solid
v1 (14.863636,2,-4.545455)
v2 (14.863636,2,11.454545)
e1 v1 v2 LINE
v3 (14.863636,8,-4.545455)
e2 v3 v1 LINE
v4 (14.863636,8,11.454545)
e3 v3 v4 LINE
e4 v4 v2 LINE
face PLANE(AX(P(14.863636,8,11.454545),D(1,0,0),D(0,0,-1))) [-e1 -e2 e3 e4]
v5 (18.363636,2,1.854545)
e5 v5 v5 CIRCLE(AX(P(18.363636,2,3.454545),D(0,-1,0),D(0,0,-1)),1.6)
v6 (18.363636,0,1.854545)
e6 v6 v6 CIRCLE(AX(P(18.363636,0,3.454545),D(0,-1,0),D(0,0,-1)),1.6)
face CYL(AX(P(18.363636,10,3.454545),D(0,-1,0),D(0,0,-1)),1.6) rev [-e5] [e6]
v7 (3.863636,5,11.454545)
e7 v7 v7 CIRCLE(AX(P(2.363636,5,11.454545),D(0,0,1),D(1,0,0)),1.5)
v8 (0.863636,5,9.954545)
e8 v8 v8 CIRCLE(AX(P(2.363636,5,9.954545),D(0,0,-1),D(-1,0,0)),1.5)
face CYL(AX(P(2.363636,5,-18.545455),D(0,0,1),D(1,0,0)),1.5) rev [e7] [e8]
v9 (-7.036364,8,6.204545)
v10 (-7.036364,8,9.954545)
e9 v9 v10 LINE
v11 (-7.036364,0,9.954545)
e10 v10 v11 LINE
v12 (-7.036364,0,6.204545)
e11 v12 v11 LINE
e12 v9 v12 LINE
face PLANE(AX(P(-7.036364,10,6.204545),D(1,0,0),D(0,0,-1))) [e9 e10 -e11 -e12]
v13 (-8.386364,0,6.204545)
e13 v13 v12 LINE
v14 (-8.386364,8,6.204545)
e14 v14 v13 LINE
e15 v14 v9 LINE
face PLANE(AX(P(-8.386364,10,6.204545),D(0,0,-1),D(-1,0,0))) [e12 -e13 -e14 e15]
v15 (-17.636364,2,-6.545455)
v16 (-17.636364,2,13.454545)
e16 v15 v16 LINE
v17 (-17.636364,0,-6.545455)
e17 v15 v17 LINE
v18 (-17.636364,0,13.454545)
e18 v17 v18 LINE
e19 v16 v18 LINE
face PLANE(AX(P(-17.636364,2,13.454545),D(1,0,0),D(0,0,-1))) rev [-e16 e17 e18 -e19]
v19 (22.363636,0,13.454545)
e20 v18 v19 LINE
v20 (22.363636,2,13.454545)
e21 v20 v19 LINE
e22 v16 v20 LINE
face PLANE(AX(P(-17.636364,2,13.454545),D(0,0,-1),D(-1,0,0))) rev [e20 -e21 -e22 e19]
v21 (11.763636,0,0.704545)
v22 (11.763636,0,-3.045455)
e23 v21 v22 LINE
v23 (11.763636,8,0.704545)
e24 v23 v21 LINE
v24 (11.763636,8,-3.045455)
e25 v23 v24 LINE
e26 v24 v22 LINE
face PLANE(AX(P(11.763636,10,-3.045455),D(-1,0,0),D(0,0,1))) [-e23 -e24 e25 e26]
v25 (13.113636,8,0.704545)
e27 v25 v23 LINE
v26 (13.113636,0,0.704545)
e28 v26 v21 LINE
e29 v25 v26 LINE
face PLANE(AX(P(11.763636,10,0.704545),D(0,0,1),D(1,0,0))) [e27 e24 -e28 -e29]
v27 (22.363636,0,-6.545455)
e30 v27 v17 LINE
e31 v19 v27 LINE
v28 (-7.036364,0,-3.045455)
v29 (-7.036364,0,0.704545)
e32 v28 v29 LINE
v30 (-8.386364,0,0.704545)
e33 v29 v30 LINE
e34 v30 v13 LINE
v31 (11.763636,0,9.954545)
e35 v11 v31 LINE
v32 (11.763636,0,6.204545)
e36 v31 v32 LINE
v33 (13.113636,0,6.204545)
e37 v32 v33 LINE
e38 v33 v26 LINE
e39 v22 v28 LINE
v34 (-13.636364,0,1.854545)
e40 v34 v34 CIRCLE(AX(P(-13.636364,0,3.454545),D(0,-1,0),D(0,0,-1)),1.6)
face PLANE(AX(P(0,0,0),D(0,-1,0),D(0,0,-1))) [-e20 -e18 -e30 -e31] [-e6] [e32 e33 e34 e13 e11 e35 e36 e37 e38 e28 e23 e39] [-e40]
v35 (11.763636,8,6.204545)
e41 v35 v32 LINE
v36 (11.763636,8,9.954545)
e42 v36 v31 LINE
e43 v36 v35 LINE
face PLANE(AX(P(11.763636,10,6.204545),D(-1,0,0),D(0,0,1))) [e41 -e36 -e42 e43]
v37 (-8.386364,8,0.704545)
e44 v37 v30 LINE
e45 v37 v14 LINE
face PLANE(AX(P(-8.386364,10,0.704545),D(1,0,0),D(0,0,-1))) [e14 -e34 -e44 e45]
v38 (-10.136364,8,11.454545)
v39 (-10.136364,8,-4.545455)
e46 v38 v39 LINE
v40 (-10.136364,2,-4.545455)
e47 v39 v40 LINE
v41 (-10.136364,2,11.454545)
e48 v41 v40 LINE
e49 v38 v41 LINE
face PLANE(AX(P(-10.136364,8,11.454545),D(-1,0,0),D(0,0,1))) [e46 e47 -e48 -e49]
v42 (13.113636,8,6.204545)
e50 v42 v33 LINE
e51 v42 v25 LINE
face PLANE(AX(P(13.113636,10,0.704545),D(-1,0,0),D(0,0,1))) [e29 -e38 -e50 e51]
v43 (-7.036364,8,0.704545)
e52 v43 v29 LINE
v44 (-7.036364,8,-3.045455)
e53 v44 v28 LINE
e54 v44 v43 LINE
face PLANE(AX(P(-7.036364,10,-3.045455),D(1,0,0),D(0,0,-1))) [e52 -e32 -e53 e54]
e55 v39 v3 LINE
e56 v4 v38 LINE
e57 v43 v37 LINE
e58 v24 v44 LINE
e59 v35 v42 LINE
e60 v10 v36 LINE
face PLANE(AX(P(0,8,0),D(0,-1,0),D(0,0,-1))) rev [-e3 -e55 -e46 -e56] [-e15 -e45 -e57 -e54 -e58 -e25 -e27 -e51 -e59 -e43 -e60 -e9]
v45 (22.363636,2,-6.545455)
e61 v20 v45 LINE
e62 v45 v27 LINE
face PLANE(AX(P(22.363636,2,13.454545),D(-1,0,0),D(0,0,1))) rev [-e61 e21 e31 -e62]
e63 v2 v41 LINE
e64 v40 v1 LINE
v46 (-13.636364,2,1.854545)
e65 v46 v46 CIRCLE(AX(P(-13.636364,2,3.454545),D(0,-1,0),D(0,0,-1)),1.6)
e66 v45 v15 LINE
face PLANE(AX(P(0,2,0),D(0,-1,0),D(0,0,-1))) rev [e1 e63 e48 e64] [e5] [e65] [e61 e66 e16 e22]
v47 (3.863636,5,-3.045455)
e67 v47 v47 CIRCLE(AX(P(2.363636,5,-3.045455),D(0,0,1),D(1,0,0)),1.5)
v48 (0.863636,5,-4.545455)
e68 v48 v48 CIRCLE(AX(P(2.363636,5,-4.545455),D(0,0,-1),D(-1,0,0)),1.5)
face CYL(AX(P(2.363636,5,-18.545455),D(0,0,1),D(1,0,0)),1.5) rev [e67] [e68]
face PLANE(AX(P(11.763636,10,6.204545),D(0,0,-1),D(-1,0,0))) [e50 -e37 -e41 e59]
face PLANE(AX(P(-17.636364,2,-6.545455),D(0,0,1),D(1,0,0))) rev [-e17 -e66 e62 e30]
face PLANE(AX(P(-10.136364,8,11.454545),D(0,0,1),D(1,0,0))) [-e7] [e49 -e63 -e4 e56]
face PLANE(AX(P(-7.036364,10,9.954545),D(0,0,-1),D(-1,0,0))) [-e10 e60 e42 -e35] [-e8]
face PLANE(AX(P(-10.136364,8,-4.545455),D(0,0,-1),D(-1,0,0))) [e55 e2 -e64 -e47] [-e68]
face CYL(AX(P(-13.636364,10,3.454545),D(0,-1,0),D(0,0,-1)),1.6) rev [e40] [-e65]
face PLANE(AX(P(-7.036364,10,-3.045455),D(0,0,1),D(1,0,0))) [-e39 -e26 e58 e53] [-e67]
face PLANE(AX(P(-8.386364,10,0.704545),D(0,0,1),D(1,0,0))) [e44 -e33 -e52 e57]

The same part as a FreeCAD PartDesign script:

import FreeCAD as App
import Part
import Sketcher

V = App.Vector
Q = App.Units.Quantity


def add_polygon(sketch, points):
    """Adds a closed chain of lines whose ends are joined by coincident constraints."""
    first, n = sketch.GeometryCount, len(points)
    for a, b in zip(points, points[1:] + points[:1]):
        sketch.addGeometry(Part.LineSegment(App.Vector(*a, 0), App.Vector(*b, 0)), False)
    for i in range(n):
        sketch.addConstraint(Sketcher.Constraint("Coincident", first + i, 2, first + (i + 1) % n, 1))

doc = App.newDocument("Part")
body = doc.addObject("PartDesign::Body", "Body")

sketch1 = doc.addObject("Sketcher::SketchObject", "Sketch")
body.addObject(sketch1)
sketch1.AttachmentSupport = (doc.XZ_Plane, [""])
sketch1.MapMode = "FlatFace"
add_polygon(sketch1, [(-18, -7), (-18, 13), (22, 13), (22, -7)])
sketch1.addConstraint([
    Sketcher.Constraint("Vertical", 0),
    Sketcher.Constraint("Horizontal", 1),
    Sketcher.Constraint("Vertical", 2),
    Sketcher.Constraint("Horizontal", 3),
    Sketcher.Constraint("DistanceX", 1, 1, 1, 2, Q("40 mm")),
    Sketcher.Constraint("DistanceY", 0, 1, 0, 2, Q("20 mm")),
    Sketcher.Constraint("DistanceX", 0, 2, -1, 1, Q("17.636364 mm")),
    Sketcher.Constraint("DistanceY", -1, 1, 0, 2, Q("13.454545 mm")),
])
pad1 = doc.addObject("PartDesign::Pad", "Pad")
body.addObject(pad1)
pad1.Profile = sketch1
pad1.Length = 2
pad1.Reversed = True

sketch2 = doc.addObject("Sketcher::SketchObject", "Sketch001")
body.addObject(sketch2)
sketch2.AttachmentSupport = (doc.XZ_Plane, [""])
sketch2.MapMode = "FlatFace"
add_polygon(sketch2, [(-10, 11), (-10, -5), (15, -5), (15, 11)])
sketch2.addConstraint([
    Sketcher.Constraint("Vertical", 0),
    Sketcher.Constraint("Horizontal", 1),
    Sketcher.Constraint("Vertical", 2),
    Sketcher.Constraint("Horizontal", 3),
    Sketcher.Constraint("DistanceX", 1, 1, 1, 2, Q("25 mm")),
    Sketcher.Constraint("DistanceY", 0, 2, 0, 1, Q("16 mm")),
    Sketcher.Constraint("DistanceX", 0, 2, -1, 1, Q("10.136364 mm")),
    Sketcher.Constraint("DistanceY", 0, 2, -1, 1, Q("4.545455 mm")),
])
pad2 = doc.addObject("PartDesign::Pad", "Pad001")
body.addObject(pad2)
pad2.Profile = sketch2
pad2.Length = 8
pad2.Reversed = True

sketch3 = doc.addObject("Sketcher::SketchObject", "Sketch002")
body.addObject(sketch3)
sketch3.AttachmentSupport = (doc.XZ_Plane, [""])
sketch3.MapMode = "FlatFace"
add_polygon(sketch3, [(11.8, -3), (-7, -3), (-7, 0.7), (-8.4, 0.7), (-8.4, 6.2), (-7, 6.2), (-7, 10), (11.8, 10), (11.8, 6.2), (13.1, 6.2), (13.1, 0.7), (11.8, 0.7)])
sketch3.addConstraint([
    Sketcher.Constraint("Horizontal", 0),
    Sketcher.Constraint("Vertical", 1),
    Sketcher.Constraint("Horizontal", 2),
    Sketcher.Constraint("Vertical", 3),
    Sketcher.Constraint("Horizontal", 4),
    Sketcher.Constraint("Vertical", 5),
    Sketcher.Constraint("Horizontal", 6),
    Sketcher.Constraint("Vertical", 7),
    Sketcher.Constraint("Horizontal", 8),
    Sketcher.Constraint("Vertical", 9),
    Sketcher.Constraint("Horizontal", 10),
    Sketcher.Constraint("Vertical", 11),
    Sketcher.Constraint("Horizontal", 4, 2, 7, 2),
    Sketcher.Constraint("Horizontal", 2, 2, 9, 2),
    Sketcher.Constraint("Vertical", 1, 2, 4, 2),
    Sketcher.Constraint("Vertical", 7, 2, 10, 2),
    Sketcher.Constraint("Equal", 4, 8),
    Sketcher.Constraint("Equal", 1, 5),
    Sketcher.Constraint("DistanceX", 0, 2, 0, 1, Q("18.8 mm")),
    Sketcher.Constraint("DistanceY", 3, 1, 3, 2, Q("5.5 mm")),
    Sketcher.Constraint("DistanceY", 0, 2, 5, 2, Q("13 mm")),
    Sketcher.Constraint("DistanceX", 2, 2, 2, 1, Q("1.35 mm")),
    Sketcher.Constraint("DistanceX", 0, 2, -1, 1, Q("7.036364 mm")),
    Sketcher.Constraint("DistanceY", 0, 2, -1, 1, Q("3.045455 mm")),
])
pocket1 = doc.addObject("PartDesign::Pocket", "Pocket")
body.addObject(pocket1)
pocket1.Profile = sketch3
pocket1.Length = 10

sketch4 = doc.addObject("Sketcher::SketchObject", "Sketch003")
body.addObject(sketch4)
sketch4.AttachmentSupport = (doc.XZ_Plane, [""])
sketch4.MapMode = "FlatFace"
sketch4.addGeometry([
    Part.Circle(V(18.4, 3.5, 0), V(0, 0, 1), 1.6),
    Part.Circle(V(-13.6, 3.5, 0), V(0, 0, 1), 1.6),
], False)
sketch4.addConstraint([
    Sketcher.Constraint("Equal", 0, 1),
    Sketcher.Constraint("Horizontal", 0, 3, 1, 3),
    Sketcher.Constraint("Diameter", 0, Q("3.2 mm")),
    Sketcher.Constraint("DistanceX", 1, 3, 0, 3, Q("32 mm")),
    Sketcher.Constraint("DistanceX", -1, 1, 0, 3, Q("18.363636 mm")),
    Sketcher.Constraint("DistanceY", -1, 1, 0, 3, Q("3.454545 mm")),
])
pocket2 = doc.addObject("PartDesign::Pocket", "Pocket001")
body.addObject(pocket2)
pocket2.Profile = sketch4
pocket2.Length = 10

sketch5 = doc.addObject("Sketcher::SketchObject", "Sketch004")
body.addObject(sketch5)
sketch5.AttachmentSupport = (doc.XY_Plane, [""])
sketch5.MapMode = "FlatFace"
sketch5.AttachmentOffset = App.Placement(V(0, 0, 11.454545), App.Rotation())
sketch5.addGeometry(Part.Circle(V(2.4, 5, 0), V(0, 0, 1), 1.5), False)
sketch5.addConstraint([
    Sketcher.Constraint("Diameter", 0, Q("3 mm")),
    Sketcher.Constraint("DistanceY", -1, 1, 0, 3, Q("5 mm")),
    Sketcher.Constraint("DistanceX", -1, 1, 0, 3, Q("2.363636 mm")),
])
pocket3 = doc.addObject("PartDesign::Pocket", "Pocket002")
body.addObject(pocket3)
pocket3.Profile = sketch5
pocket3.Length = 30

doc.recompute()
